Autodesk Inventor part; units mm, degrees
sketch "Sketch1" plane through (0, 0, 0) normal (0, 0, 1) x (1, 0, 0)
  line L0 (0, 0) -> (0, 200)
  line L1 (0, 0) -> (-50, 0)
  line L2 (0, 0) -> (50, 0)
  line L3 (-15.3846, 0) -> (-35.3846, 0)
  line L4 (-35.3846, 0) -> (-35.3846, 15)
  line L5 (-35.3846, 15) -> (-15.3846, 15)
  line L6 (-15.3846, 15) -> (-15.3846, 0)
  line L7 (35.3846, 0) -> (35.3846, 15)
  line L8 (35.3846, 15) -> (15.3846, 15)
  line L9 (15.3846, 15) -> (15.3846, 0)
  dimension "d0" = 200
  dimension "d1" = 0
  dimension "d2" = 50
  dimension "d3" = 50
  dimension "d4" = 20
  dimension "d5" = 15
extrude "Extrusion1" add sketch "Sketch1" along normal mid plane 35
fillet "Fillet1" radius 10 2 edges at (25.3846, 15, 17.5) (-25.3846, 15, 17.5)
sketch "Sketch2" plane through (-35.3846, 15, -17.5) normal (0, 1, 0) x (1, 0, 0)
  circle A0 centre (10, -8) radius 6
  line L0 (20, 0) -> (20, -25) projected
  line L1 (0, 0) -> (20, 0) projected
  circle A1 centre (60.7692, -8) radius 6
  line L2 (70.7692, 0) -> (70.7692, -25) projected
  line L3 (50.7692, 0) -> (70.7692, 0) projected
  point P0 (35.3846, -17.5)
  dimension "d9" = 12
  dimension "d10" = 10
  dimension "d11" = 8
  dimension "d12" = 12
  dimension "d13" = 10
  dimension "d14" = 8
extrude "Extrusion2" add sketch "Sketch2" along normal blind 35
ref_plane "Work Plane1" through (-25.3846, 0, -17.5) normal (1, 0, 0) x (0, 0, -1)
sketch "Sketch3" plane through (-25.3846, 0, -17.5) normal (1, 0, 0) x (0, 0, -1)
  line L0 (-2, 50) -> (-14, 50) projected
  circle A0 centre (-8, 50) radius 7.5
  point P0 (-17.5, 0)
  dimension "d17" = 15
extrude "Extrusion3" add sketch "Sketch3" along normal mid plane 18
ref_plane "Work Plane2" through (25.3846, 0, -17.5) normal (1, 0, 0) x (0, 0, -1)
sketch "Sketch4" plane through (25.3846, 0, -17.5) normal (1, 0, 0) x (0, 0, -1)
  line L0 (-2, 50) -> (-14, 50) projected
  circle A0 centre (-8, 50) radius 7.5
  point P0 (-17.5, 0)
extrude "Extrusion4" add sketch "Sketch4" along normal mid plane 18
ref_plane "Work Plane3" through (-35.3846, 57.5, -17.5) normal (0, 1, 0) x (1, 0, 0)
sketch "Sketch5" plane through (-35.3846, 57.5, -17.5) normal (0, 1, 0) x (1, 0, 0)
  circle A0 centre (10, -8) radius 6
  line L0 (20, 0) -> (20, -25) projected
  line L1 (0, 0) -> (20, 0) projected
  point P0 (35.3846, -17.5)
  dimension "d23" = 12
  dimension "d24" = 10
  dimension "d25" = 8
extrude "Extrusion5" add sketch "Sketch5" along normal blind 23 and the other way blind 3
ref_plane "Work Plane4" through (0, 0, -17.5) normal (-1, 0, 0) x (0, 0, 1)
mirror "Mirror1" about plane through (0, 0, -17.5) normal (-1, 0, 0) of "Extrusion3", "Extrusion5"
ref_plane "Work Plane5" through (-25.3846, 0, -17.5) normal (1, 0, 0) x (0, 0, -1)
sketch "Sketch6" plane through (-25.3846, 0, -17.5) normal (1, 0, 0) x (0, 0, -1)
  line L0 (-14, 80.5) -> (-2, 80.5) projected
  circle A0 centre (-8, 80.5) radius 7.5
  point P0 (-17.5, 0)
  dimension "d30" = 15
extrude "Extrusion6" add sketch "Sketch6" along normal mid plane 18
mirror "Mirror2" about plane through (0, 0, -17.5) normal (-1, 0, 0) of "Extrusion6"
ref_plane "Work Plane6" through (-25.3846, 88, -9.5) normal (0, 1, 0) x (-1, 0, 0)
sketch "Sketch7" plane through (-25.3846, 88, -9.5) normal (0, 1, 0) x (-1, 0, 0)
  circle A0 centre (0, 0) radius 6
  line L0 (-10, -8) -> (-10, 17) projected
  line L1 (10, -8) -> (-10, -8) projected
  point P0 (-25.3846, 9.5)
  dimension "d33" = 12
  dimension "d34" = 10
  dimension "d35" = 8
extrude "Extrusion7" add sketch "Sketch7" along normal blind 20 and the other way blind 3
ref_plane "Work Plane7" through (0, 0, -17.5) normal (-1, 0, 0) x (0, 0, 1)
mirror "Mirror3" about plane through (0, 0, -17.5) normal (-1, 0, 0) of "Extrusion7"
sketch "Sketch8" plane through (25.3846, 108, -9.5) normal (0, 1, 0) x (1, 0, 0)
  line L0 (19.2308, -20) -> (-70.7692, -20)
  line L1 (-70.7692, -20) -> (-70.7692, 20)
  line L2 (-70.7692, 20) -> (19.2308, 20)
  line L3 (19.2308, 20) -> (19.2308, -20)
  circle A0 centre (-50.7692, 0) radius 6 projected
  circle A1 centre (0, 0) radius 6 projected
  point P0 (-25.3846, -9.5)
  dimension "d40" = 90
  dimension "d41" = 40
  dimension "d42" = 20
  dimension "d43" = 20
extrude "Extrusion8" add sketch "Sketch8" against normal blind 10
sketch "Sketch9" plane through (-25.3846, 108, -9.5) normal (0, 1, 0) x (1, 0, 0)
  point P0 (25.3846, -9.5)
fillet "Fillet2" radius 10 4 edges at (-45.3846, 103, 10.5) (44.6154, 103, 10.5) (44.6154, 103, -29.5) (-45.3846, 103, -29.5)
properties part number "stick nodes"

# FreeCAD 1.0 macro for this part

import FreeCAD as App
import Part
import Sketcher


def edges_at(feature, points):
    """Names of the edges that pass closest to the given points."""
    edges = feature.Shape.Edges
    near = lambda p: min(range(len(edges)), key=lambda i: edges[i].distToShape(Part.Vertex(*p))[0])
    return sorted({f"Edge{near(p) + 1}" for p in points})

doc = App.newDocument("Part")
body = doc.addObject("PartDesign::Body", "Body")
body.AllowCompound = True

sketch1 = body.newObject("Sketcher::SketchObject", "Sketch")
sketch1.AttachmentSupport = (doc.getObject("XY_Plane"), [""])
sketch1.MapMode = "FlatFace"
sketch1.addGeometry(Part.LineSegment(App.Vector(-35, 0, 0), App.Vector(-15, 0, 0)), False)
sketch1.addGeometry(Part.LineSegment(App.Vector(-15, 0, 0), App.Vector(-15, 15, 0)), False)
sketch1.addGeometry(Part.LineSegment(App.Vector(-15, 15, 0), App.Vector(-35, 15, 0)), False)
sketch1.addGeometry(Part.LineSegment(App.Vector(-35, 15, 0), App.Vector(-35, 0, 0)), False)
sketch1.addGeometry(Part.LineSegment(App.Vector(15, 15, 0), App.Vector(15, 0, 0)), False)
sketch1.addGeometry(Part.LineSegment(App.Vector(15, 0, 0), App.Vector(35, 0, 0)), False)
sketch1.addGeometry(Part.LineSegment(App.Vector(35, 0, 0), App.Vector(35, 15, 0)), False)
sketch1.addGeometry(Part.LineSegment(App.Vector(35, 15, 0), App.Vector(15, 15, 0)), False)
sketch1.addConstraint(Sketcher.Constraint("Coincident", 0, 2, 1, 1))
sketch1.addConstraint(Sketcher.Constraint("Coincident", 1, 2, 2, 1))
sketch1.addConstraint(Sketcher.Constraint("Coincident", 2, 2, 3, 1))
sketch1.addConstraint(Sketcher.Constraint("Coincident", 3, 2, 0, 1))
sketch1.addConstraint(Sketcher.Constraint("Coincident", 4, 2, 5, 1))
sketch1.addConstraint(Sketcher.Constraint("Coincident", 5, 2, 6, 1))
sketch1.addConstraint(Sketcher.Constraint("Coincident", 6, 2, 7, 1))
sketch1.addConstraint(Sketcher.Constraint("Coincident", 7, 2, 4, 1))
sketch1.addConstraint(Sketcher.Constraint("Horizontal", 0))
sketch1.addConstraint(Sketcher.Constraint("Vertical", 1))
sketch1.addConstraint(Sketcher.Constraint("Horizontal", 2))
sketch1.addConstraint(Sketcher.Constraint("Vertical", 3))
sketch1.addConstraint(Sketcher.Constraint("Vertical", 4))
sketch1.addConstraint(Sketcher.Constraint("Horizontal", 5))
sketch1.addConstraint(Sketcher.Constraint("Vertical", 6))
sketch1.addConstraint(Sketcher.Constraint("Horizontal", 7))
sketch1.addConstraint(Sketcher.Constraint("Symmetric", 0, 2, 4, 2, -1, 1))
sketch1.addConstraint(Sketcher.Constraint("Symmetric", 3, 2, 5, 2, -2))
sketch1.addConstraint(Sketcher.Constraint("Horizontal", 2, 2, 6, 2))
sketch1.addConstraint(Sketcher.Constraint("DistanceX", 0, 1, 0, 2, 20.0))
sketch1.addConstraint(Sketcher.Constraint("DistanceY", 1, 1, 1, 2, 15.0))
sketch1.addConstraint(Sketcher.Constraint("DistanceX", 0, 2, -1, 1, 15.3846))
pad1 = body.newObject("PartDesign::Pad", "Pad")
pad1.Profile = sketch1
pad1.Length = 35
pad1.Midplane = True
doc.recompute()

fillet = body.newObject("PartDesign::Fillet", "Fillet")
fillet.Base = (pad1, edges_at(pad1, [(25.385, 15, 17.5), (-25.385, 15, 17.5)]))
fillet.Radius = 10

sketch2 = body.newObject("Sketcher::SketchObject", "Sketch001")
sketch2.AttachmentSupport = (doc.getObject("XZ_Plane"), [""])
sketch2.MapMode = "FlatFace"
sketch2.AttachmentOffset = App.Placement(App.Vector(0, 0, -15), App.Rotation())
sketch2.addGeometry(Part.Circle(App.Vector(-25, -10, 0), App.Vector(0, 0, 1), 6), False)
sketch2.addGeometry(Part.Circle(App.Vector(25, -10, 0), App.Vector(0, 0, 1), 6), False)
sketch2.addConstraint(Sketcher.Constraint("Equal", 0, 1))
sketch2.addConstraint(Sketcher.Constraint("Symmetric", 0, 3, 1, 3, -2))
sketch2.addConstraint(Sketcher.Constraint("Diameter", 0, 12.0))
sketch2.addConstraint(Sketcher.Constraint("DistanceY", 0, 3, -1, 1, 9.5))
sketch2.addConstraint(Sketcher.Constraint("DistanceX", 0, 3, -1, 1, 25.3846))
pad2 = body.newObject("PartDesign::Pad", "Pad001")
pad2.Profile = sketch2
pad2.Length = 35
pad2.Reversed = True

sketch3 = body.newObject("Sketcher::SketchObject", "Sketch002")
sketch3.AttachmentSupport = (doc.getObject("YZ_Plane"), [""])
sketch3.MapMode = "FlatFace"
sketch3.AttachmentOffset = App.Placement(App.Vector(0, 0, -25.3846), App.Rotation())
sketch3.addGeometry(Part.Circle(App.Vector(50, -10, 0), App.Vector(0, 0, 1), 8), False)
sketch3.addConstraint(Sketcher.Constraint("Diameter", 0, 15.0))
sketch3.addConstraint(Sketcher.Constraint("DistanceX", -1, 1, 0, 3, 50.0))
sketch3.addConstraint(Sketcher.Constraint("DistanceY", 0, 3, -1, 1, 9.5))
pad3 = body.newObject("PartDesign::Pad", "Pad002")
pad3.Profile = sketch3
pad3.Length = 18
pad3.Midplane = True

sketch4 = body.newObject("Sketcher::SketchObject", "Sketch003")
sketch4.AttachmentSupport = (doc.getObject("YZ_Plane"), [""])
sketch4.MapMode = "FlatFace"
sketch4.AttachmentOffset = App.Placement(App.Vector(0, 0, 25.3846), App.Rotation())
sketch4.addGeometry(Part.Circle(App.Vector(50, -10, 0), App.Vector(0, 0, 1), 8), False)
sketch4.addConstraint(Sketcher.Constraint("Diameter", 0, 15.0))
sketch4.addConstraint(Sketcher.Constraint("DistanceX", -1, 1, 0, 3, 50.0))
sketch4.addConstraint(Sketcher.Constraint("DistanceY", 0, 3, -1, 1, 9.5))
pad4 = body.newObject("PartDesign::Pad", "Pad003")
pad4.Profile = sketch4
pad4.Length = 18
pad4.Midplane = True

sketch5 = body.newObject("Sketcher::SketchObject", "Sketch004")
sketch5.AttachmentSupport = (doc.getObject("XZ_Plane"), [""])
sketch5.MapMode = "FlatFace"
sketch5.AttachmentOffset = App.Placement(App.Vector(0, 0, -57.5), App.Rotation())
sketch5.addGeometry(Part.Circle(App.Vector(-25, -10, 0), App.Vector(0, 0, 1), 6), False)
sketch5.addConstraint(Sketcher.Constraint("Diameter", 0, 12.0))
sketch5.addConstraint(Sketcher.Constraint("DistanceY", 0, 3, -1, 1, 9.5))
sketch5.addConstraint(Sketcher.Constraint("DistanceX", 0, 3, -1, 1, 25.3846))
pad5 = body.newObject("PartDesign::Pad", "Pad004")
pad5.Profile = sketch5
pad5.Type = "TwoLengths"
pad5.Length = 23
pad5.Length2 = 3
pad5.Reversed = True
doc.recompute()

mirrored = body.newObject("PartDesign::Mirrored", "Mirrored")
mirrored.Originals = [pad3, pad5]
mirrored.MirrorPlane = (doc.getObject("YZ_Plane"), [""])
body.Tip = mirrored

sketch6 = body.newObject("Sketcher::SketchObject", "Sketch005")
sketch6.AttachmentSupport = (doc.getObject("YZ_Plane"), [""])
sketch6.MapMode = "FlatFace"
sketch6.AttachmentOffset = App.Placement(App.Vector(0, 0, -25.3846), App.Rotation())
sketch6.addGeometry(Part.Circle(App.Vector(80, -10, 0), App.Vector(0, 0, 1), 8), False)
sketch6.addConstraint(Sketcher.Constraint("Diameter", 0, 15.0))
sketch6.addConstraint(Sketcher.Constraint("DistanceX", -1, 1, 0, 3, 80.5))
sketch6.addConstraint(Sketcher.Constraint("DistanceY", 0, 3, -1, 1, 9.5))
pad6 = body.newObject("PartDesign::Pad", "Pad005")
pad6.Profile = sketch6
pad6.Length = 18
pad6.Midplane = True
doc.recompute()

mirrored2 = body.newObject("PartDesign::Mirrored", "Mirrored001")
mirrored2.Originals = [pad6]
mirrored2.MirrorPlane = (doc.getObject("YZ_Plane"), [""])
body.Tip = mirrored2

sketch7 = body.newObject("Sketcher::SketchObject", "Sketch006")
sketch7.AttachmentSupport = (doc.getObject("XZ_Plane"), [""])
sketch7.MapMode = "FlatFace"
sketch7.AttachmentOffset = App.Placement(App.Vector(0, 0, -88), App.Rotation())
sketch7.addGeometry(Part.Circle(App.Vector(-25, -10, 0), App.Vector(0, 0, 1), 6), False)
sketch7.addConstraint(Sketcher.Constraint("Diameter", 0, 12.0))
sketch7.addConstraint(Sketcher.Constraint("DistanceY", 0, 3, -1, 1, 9.5))
sketch7.addConstraint(Sketcher.Constraint("DistanceX", 0, 3, -1, 1, 25.3846))
pad7 = body.newObject("PartDesign::Pad", "Pad006")
pad7.Profile = sketch7
pad7.Type = "TwoLengths"
pad7.Length = 20
pad7.Length2 = 3
pad7.Reversed = True
doc.recompute()

mirrored3 = body.newObject("PartDesign::Mirrored", "Mirrored002")
mirrored3.Originals = [pad7]
mirrored3.MirrorPlane = (doc.getObject("YZ_Plane"), [""])
body.Tip = mirrored3

sketch8 = body.newObject("Sketcher::SketchObject", "Sketch007")
sketch8.AttachmentSupport = (doc.getObject("XZ_Plane"), [""])
sketch8.MapMode = "FlatFace"
sketch8.AttachmentOffset = App.Placement(App.Vector(0, 0, -108), App.Rotation())
sketch8.addGeometry(Part.LineSegment(App.Vector(-45, 10, 0), App.Vector(45, 10, 0)), False)
sketch8.addGeometry(Part.LineSegment(App.Vector(45, 10, 0), App.Vector(45, -30, 0)), False)
sketch8.addGeometry(Part.LineSegment(App.Vector(45, -30, 0), App.Vector(-45, -30, 0)), False)
sketch8.addGeometry(Part.LineSegment(App.Vector(-45, -30, 0), App.Vector(-45, 10, 0)), False)
sketch8.addGeometry(Part.Circle(App.Vector(-25, -10, 0), App.Vector(0, 0, 1), 6), False)
sketch8.addGeometry(Part.Circle(App.Vector(25, -10, 0), App.Vector(0, 0, 1), 6), False)
sketch8.addConstraint(Sketcher.Constraint("Coincident", 0, 2, 1, 1))
sketch8.addConstraint(Sketcher.Constraint("Coincident", 1, 2, 2, 1))
sketch8.addConstraint(Sketcher.Constraint("Coincident", 2, 2, 3, 1))
sketch8.addConstraint(Sketcher.Constraint("Coincident", 3, 2, 0, 1))
sketch8.addConstraint(Sketcher.Constraint("Horizontal", 0))
sketch8.addConstraint(Sketcher.Constraint("Vertical", 1))
sketch8.addConstraint(Sketcher.Constraint("Horizontal", 2))
sketch8.addConstraint(Sketcher.Constraint("Vertical", 3))
sketch8.addConstraint(Sketcher.Constraint("Equal", 4, 5))
sketch8.addConstraint(Sketcher.Constraint("Symmetric", 4, 3, 5, 3, -2))
sketch8.addConstraint(Sketcher.Constraint("DistanceX", 0, 1, 0, 2, 90.0))
sketch8.addConstraint(Sketcher.Constraint("DistanceY", 1, 2, 1, 1, 40.0))
sketch8.addConstraint(Sketcher.Constraint("Diameter", 4, 12.0))
sketch8.addConstraint(Sketcher.Constraint("DistanceY", 5, 3, 0, 2, 20.0))
sketch8.addConstraint(Sketcher.Constraint("DistanceX", 2, 2, 4, 3, 20.0))
sketch8.addConstraint(Sketcher.Constraint("DistanceY", 4, 3, -1, 1, 9.5))
sketch8.addConstraint(Sketcher.Constraint("DistanceX", 4, 3, -1, 1, 25.3846))
pad8 = body.newObject("PartDesign::Pad", "Pad007")
pad8.Profile = sketch8
pad8.Length = 10
doc.recompute()

fillet2 = body.newObject("PartDesign::Fillet", "Fillet001")
fillet2.Base = (pad8, edges_at(pad8, [
    (-45.385, 103, 10.5),
    (44.615, 103, 10.5),
    (44.615, 103, -29.5),
    (-45.385, 103, -29.5),
]))
fillet2.Radius = 10

doc.recompute()
